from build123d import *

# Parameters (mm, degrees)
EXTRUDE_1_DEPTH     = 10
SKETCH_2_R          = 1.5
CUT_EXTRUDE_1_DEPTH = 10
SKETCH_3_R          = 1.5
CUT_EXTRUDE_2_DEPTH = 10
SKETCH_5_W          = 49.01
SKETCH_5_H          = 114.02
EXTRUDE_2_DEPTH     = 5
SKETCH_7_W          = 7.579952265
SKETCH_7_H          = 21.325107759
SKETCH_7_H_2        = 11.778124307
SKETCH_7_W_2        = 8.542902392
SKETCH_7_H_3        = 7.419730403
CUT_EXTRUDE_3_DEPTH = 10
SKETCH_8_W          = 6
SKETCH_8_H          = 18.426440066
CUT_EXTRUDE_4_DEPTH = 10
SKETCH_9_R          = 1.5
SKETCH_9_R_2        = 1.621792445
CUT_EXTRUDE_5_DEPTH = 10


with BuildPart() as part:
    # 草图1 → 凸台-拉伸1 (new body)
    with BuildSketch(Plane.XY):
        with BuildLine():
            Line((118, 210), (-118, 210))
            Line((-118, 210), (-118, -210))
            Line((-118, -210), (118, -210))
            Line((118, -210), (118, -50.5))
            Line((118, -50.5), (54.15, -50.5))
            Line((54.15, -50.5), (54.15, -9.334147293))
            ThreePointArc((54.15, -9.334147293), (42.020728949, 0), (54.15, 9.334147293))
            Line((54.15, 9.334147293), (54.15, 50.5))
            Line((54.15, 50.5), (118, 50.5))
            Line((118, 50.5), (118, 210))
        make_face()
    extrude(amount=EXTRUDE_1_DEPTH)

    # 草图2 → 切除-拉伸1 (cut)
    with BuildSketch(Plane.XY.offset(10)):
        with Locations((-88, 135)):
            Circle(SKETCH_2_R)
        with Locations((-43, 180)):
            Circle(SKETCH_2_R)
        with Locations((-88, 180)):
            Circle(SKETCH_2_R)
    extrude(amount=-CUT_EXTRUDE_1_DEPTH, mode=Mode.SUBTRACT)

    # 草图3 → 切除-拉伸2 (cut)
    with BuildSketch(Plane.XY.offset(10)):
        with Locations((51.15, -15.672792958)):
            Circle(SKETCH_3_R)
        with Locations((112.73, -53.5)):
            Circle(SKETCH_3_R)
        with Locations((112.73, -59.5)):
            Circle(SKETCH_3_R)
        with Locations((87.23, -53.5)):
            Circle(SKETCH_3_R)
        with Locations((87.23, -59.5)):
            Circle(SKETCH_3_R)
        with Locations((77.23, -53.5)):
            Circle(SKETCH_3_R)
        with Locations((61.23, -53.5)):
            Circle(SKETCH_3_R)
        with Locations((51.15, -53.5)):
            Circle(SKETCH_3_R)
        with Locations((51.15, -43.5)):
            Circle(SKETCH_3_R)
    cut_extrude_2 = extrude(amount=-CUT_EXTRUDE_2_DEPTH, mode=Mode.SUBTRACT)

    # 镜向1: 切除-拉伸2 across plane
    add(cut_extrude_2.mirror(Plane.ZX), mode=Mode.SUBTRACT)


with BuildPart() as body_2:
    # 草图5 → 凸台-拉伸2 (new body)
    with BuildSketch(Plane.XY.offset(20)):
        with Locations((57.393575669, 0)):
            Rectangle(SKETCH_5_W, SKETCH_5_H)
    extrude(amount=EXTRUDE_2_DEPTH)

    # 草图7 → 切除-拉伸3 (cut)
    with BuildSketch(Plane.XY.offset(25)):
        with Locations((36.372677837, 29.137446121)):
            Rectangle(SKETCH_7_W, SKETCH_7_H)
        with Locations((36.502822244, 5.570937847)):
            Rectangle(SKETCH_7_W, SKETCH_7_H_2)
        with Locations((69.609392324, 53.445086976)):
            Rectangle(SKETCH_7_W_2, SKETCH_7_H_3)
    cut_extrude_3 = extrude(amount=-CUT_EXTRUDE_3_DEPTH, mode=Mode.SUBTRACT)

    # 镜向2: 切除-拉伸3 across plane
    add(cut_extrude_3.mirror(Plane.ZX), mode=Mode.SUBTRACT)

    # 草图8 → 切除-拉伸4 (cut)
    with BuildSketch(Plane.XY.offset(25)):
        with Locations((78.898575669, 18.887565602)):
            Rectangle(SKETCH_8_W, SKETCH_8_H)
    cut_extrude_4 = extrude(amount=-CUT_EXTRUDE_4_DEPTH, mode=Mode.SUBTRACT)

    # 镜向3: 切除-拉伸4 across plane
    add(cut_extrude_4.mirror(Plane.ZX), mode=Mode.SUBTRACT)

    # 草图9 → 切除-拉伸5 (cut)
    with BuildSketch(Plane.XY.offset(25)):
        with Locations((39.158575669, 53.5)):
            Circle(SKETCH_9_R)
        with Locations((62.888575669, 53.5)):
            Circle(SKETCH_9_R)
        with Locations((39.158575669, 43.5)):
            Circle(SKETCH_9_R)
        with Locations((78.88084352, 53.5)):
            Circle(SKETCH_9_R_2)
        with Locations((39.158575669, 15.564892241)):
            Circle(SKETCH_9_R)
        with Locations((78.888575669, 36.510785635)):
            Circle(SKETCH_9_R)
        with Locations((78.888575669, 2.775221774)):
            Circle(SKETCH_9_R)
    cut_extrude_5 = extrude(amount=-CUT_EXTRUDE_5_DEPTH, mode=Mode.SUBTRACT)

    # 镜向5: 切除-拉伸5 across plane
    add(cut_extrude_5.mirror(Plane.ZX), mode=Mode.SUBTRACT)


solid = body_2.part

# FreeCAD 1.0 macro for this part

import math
import FreeCAD as App
import Part
import Sketcher


def add_polygon(sketch, points):
    """Adds a closed chain of lines whose ends are joined by coincident constraints."""
    first, n = sketch.GeometryCount, len(points)
    for a, b in zip(points, points[1:] + points[:1]):
        sketch.addGeometry(Part.LineSegment(App.Vector(*a, 0), App.Vector(*b, 0)), False)
    for i in range(n):
        sketch.addConstraint(Sketcher.Constraint("Coincident", first + i, 2, first + (i + 1) % n, 1))

doc = App.newDocument("Part")
body = doc.addObject("PartDesign::Body", "Body")

sketch1 = doc.addObject("Sketcher::SketchObject", "Sketch")
body.addObject(sketch1)
sketch1.AttachmentSupport = (doc.XY_Plane, [""])
sketch1.MapMode = "FlatFace"
sketch1.addGeometry([
    Part.LineSegment(App.Vector(118, 210, 0), App.Vector(-118, 210, 0)),
    Part.LineSegment(App.Vector(-118, 210, 0), App.Vector(-118, -210, 0)),
    Part.LineSegment(App.Vector(-118, -210, 0), App.Vector(118, -210, 0)),
    Part.LineSegment(App.Vector(118, -210, 0), App.Vector(118, -50, 0)),
    Part.LineSegment(App.Vector(118, -50, 0), App.Vector(54, -50, 0)),
    Part.LineSegment(App.Vector(54, -50, 0), App.Vector(54, -9, 0)),
    Part.ArcOfCircle(Part.Circle(App.Vector(52, 0, 0), App.Vector(0, 0, 1), 10), math.radians(75), math.radians(285)),
    Part.LineSegment(App.Vector(54, 9, 0), App.Vector(54, 50, 0)),
    Part.LineSegment(App.Vector(54, 50, 0), App.Vector(118, 50, 0)),
    Part.LineSegment(App.Vector(118, 50, 0), App.Vector(118, 210, 0)),
], False)
sketch1.addConstraint([
    Sketcher.Constraint("Coincident", 0, 2, 1, 1),
    Sketcher.Constraint("Coincident", 1, 2, 2, 1),
    Sketcher.Constraint("Coincident", 2, 2, 3, 1),
    Sketcher.Constraint("Coincident", 3, 2, 4, 1),
    Sketcher.Constraint("Coincident", 4, 2, 5, 1),
    Sketcher.Constraint("Coincident", 5, 2, 6, 2),
    Sketcher.Constraint("Coincident", 6, 1, 7, 1),
    Sketcher.Constraint("Coincident", 7, 2, 8, 1),
    Sketcher.Constraint("Coincident", 8, 2, 9, 1),
    Sketcher.Constraint("Coincident", 9, 2, 0, 1),
    Sketcher.Constraint("Horizontal", 0),
    Sketcher.Constraint("Vertical", 1),
    Sketcher.Constraint("Horizontal", 2),
    Sketcher.Constraint("Vertical", 3),
    Sketcher.Constraint("Horizontal", 4),
    Sketcher.Constraint("Vertical", 5),
    Sketcher.Constraint("Vertical", 7),
    Sketcher.Constraint("Horizontal", 8),
    Sketcher.Constraint("Vertical", 9),
    Sketcher.Constraint("Symmetric", 0, 2, 2, 2, -1, 1),
    Sketcher.Constraint("Symmetric", 5, 2, 6, 1, -1),
    Sketcher.Constraint("Symmetric", 3, 2, 8, 2, -1),
    Sketcher.Constraint("DistanceX", 0, 2, 0, 1, 236.0),
    Sketcher.Constraint("DistanceY", 1, 2, 1, 1, 420.0),
    Sketcher.Constraint("DistanceY", 3, 1, 3, 2, 159.5),
    Sketcher.Constraint("DistanceX", 4, 2, 4, 1, 63.85),
    Sketcher.Constraint("Radius", 6, 9.656208),
    Sketcher.Constraint("DistanceY", 5, 1, 5, 2, 41.165853),
])
pad1 = doc.addObject("PartDesign::Pad", "Pad")
body.addObject(pad1)
pad1.Profile = sketch1
pad1.Length = 10

sketch2 = doc.addObject("Sketcher::SketchObject", "Sketch001")
body.addObject(sketch2)
sketch2.AttachmentSupport = (doc.XY_Plane, [""])
sketch2.MapMode = "FlatFace"
sketch2.AttachmentOffset = App.Placement(App.Vector(0, 0, 10), App.Rotation())
sketch2.addGeometry([
    Part.Circle(App.Vector(-88, 135, 0), App.Vector(0, 0, 1), 1.5),
    Part.Circle(App.Vector(-43, 180, 0), App.Vector(0, 0, 1), 1.5),
    Part.Circle(App.Vector(-88, 180, 0), App.Vector(0, 0, 1), 1.5),
], False)
sketch2.addConstraint([
    Sketcher.Constraint("Equal", 0, 1),
    Sketcher.Constraint("Equal", 1, 2),
    Sketcher.Constraint("Horizontal", 1, 3, 2, 3),
    Sketcher.Constraint("Vertical", 0, 3, 2, 3),
    Sketcher.Constraint("Diameter", 0, 3.0),
    Sketcher.Constraint("DistanceX", 0, 3, -1, 1, 88.0),
    Sketcher.Constraint("DistanceY", -1, 1, 0, 3, 135.0),
    Sketcher.Constraint("DistanceX", 1, 3, -1, 1, 43.0),
    Sketcher.Constraint("DistanceY", -1, 1, 1, 3, 180.0),
])
pocket1 = doc.addObject("PartDesign::Pocket", "Pocket")
body.addObject(pocket1)
pocket1.Profile = sketch2
pocket1.Length = 10

sketch3 = doc.addObject("Sketcher::SketchObject", "Sketch002")
body.addObject(sketch3)
sketch3.AttachmentSupport = (doc.XY_Plane, [""])
sketch3.MapMode = "FlatFace"
sketch3.AttachmentOffset = App.Placement(App.Vector(0, 0, 10), App.Rotation())
sketch3.addGeometry([
    Part.Circle(App.Vector(51.1, -15.7, 0), App.Vector(0, 0, 1), 1.5),
    Part.Circle(App.Vector(112.7, -53.5, 0), App.Vector(0, 0, 1), 1.5),
    Part.Circle(App.Vector(112.7, -59.5, 0), App.Vector(0, 0, 1), 1.5),
    Part.Circle(App.Vector(87.2, -53.5, 0), App.Vector(0, 0, 1), 1.5),
    Part.Circle(App.Vector(87.2, -59.5, 0), App.Vector(0, 0, 1), 1.5),
    Part.Circle(App.Vector(77.2, -53.5, 0), App.Vector(0, 0, 1), 1.5),
    Part.Circle(App.Vector(61.2, -53.5, 0), App.Vector(0, 0, 1), 1.5),
    Part.Circle(App.Vector(51.1, -53.5, 0), App.Vector(0, 0, 1), 1.5),
    Part.Circle(App.Vector(51.1, -43.5, 0), App.Vector(0, 0, 1), 1.5),
], False)
sketch3.addConstraint([
    Sketcher.Constraint("Equal", 0, 1),
    Sketcher.Constraint("Equal", 1, 2),
    Sketcher.Constraint("Equal", 2, 3),
    Sketcher.Constraint("Equal", 3, 4),
    Sketcher.Constraint("Equal", 4, 5),
    Sketcher.Constraint("Equal", 5, 6),
    Sketcher.Constraint("Equal", 6, 7),
    Sketcher.Constraint("Equal", 7, 8),
    Sketcher.Constraint("Horizontal", 1, 3, 3, 3),
    Sketcher.Constraint("Horizontal", 2, 3, 4, 3),
    Sketcher.Constraint("Horizontal", 3, 3, 5, 3),
    Sketcher.Constraint("Horizontal", 5, 3, 6, 3),
    Sketcher.Constraint("Horizontal", 6, 3, 7, 3),
    Sketcher.Constraint("Vertical", 1, 3, 2, 3),
    Sketcher.Constraint("Vertical", 3, 3, 4, 3),
    Sketcher.Constraint("Vertical", 0, 3, 7, 3),
    Sketcher.Constraint("Vertical", 7, 3, 8, 3),
    Sketcher.Constraint("Diameter", 0, 3.0),
    Sketcher.Constraint("DistanceY", 2, 3, 1, 3, 6.0),
    Sketcher.Constraint("DistanceX", 5, 3, 3, 3, 10.0),
    Sketcher.Constraint("DistanceX", 6, 3, 5, 3, 16.0),
    Sketcher.Constraint("DistanceY", 7, 3, 8, 3, 10.0),
    Sketcher.Constraint("DistanceY", 1, 3, -1, 1, 53.5),
    Sketcher.Constraint("DistanceX", 3, 3, 1, 3, 25.5),
    Sketcher.Constraint("DistanceX", -1, 1, 0, 3, 51.15),
    Sketcher.Constraint("DistanceX", -1, 1, 1, 3, 112.73),
    Sketcher.Constraint("DistanceY", 0, 3, -1, 1, 15.672793),
])
pocket2 = doc.addObject("PartDesign::Pocket", "Pocket001")
body.addObject(pocket2)
pocket2.Profile = sketch3
pocket2.Length = 10
doc.recompute()

mirrored = doc.addObject("PartDesign::Mirrored", "Mirrored")
body.addObject(mirrored)
mirrored.Originals = [pocket2]
mirrored.MirrorPlane = (doc.XZ_Plane, [""])
body.Tip = mirrored
body2 = doc.addObject("PartDesign::Body", "Body001")

sketch4 = doc.addObject("Sketcher::SketchObject", "Sketch003")
body2.addObject(sketch4)
sketch4.AttachmentSupport = (doc.getObject("XY_Plane001"), [""])
sketch4.MapMode = "FlatFace"
sketch4.AttachmentOffset = App.Placement(App.Vector(0, 0, 20), App.Rotation())
add_polygon(sketch4, [(33, 57), (33, -57), (82, -57), (82, 57)])
sketch4.addConstraint([
    Sketcher.Constraint("Vertical", 0),
    Sketcher.Constraint("Horizontal", 1),
    Sketcher.Constraint("Vertical", 2),
    Sketcher.Constraint("Horizontal", 3),
    Sketcher.Constraint("DistanceX", 1, 1, 1, 2, 49.01),
    Sketcher.Constraint("DistanceY", 0, 2, 0, 1, 114.02),
    Sketcher.Constraint("DistanceY", 0, 2, -1, 1, 57.01),
    Sketcher.Constraint("DistanceX", -1, 1, 0, 2, 32.888576),
])
pad2 = doc.addObject("PartDesign::Pad", "Pad001")
body2.addObject(pad2)
pad2.Profile = sketch4
pad2.Length = 5

sketch5 = doc.addObject("Sketcher::SketchObject", "Sketch004")
body2.addObject(sketch5)
sketch5.AttachmentSupport = (doc.getObject("XY_Plane001"), [""])
sketch5.MapMode = "FlatFace"
sketch5.AttachmentOffset = App.Placement(App.Vector(0, 0, 25), App.Rotation())
add_polygon(sketch5, [(33, 40), (33, 18), (40, 18), (40, 40)])
add_polygon(sketch5, [(33, 11), (33, 0), (40, 0), (40, 11)])
add_polygon(sketch5, [(65, 57), (65, 50), (74, 50), (74, 57)])
sketch5.addConstraint([
    Sketcher.Constraint("Vertical", 0),
    Sketcher.Constraint("Horizontal", 1),
    Sketcher.Constraint("Vertical", 2),
    Sketcher.Constraint("Horizontal", 3),
    Sketcher.Constraint("Vertical", 4),
    Sketcher.Constraint("Horizontal", 5),
    Sketcher.Constraint("Vertical", 6),
    Sketcher.Constraint("Horizontal", 7),
    Sketcher.Constraint("Vertical", 8),
    Sketcher.Constraint("Horizontal", 9),
    Sketcher.Constraint("Vertical", 10),
    Sketcher.Constraint("Horizontal", 11),
    Sketcher.Constraint("Equal", 3, 5),
    Sketcher.Constraint("DistanceY", -1, 1, 2, 2, 39.8),
    Sketcher.Constraint("DistanceY", -1, 1, 6, 2, 11.46),
    Sketcher.Constraint("DistanceY", 8, 2, 8, 1, 7.41973),
    Sketcher.Constraint("DistanceX", -1, 1, 0, 2, 32.582702),
    Sketcher.Constraint("DistanceX", -1, 1, 5, 2, 40.292798),
    Sketcher.Constraint("DistanceX", 1, 1, 1, 2, 7.579952),
    Sketcher.Constraint("DistanceX", 9, 1, 9, 2, 8.542902),
    Sketcher.Constraint("DistanceY", 0, 2, 0, 1, 21.325108),
    Sketcher.Constraint("DistanceY", 4, 2, 4, 1, 11.778124),
    Sketcher.Constraint("DistanceX", -1, 1, 8, 2, 65.337941),
    Sketcher.Constraint("DistanceY", -1, 1, 8, 2, 49.735222),
])
pocket3 = doc.addObject("PartDesign::Pocket", "Pocket002")
body2.addObject(pocket3)
pocket3.Profile = sketch5
pocket3.Length = 10
doc.recompute()

mirrored2 = doc.addObject("PartDesign::Mirrored", "Mirrored001")
body2.addObject(mirrored2)
mirrored2.Originals = [pocket3]
mirrored2.MirrorPlane = (doc.getObject("XZ_Plane001"), [""])
body2.Tip = mirrored2

sketch6 = doc.addObject("Sketcher::SketchObject", "Sketch005")
body2.addObject(sketch6)
sketch6.AttachmentSupport = (doc.getObject("XY_Plane001"), [""])
sketch6.MapMode = "FlatFace"
sketch6.AttachmentOffset = App.Placement(App.Vector(0, 0, 25), App.Rotation())
add_polygon(sketch6, [(76, 28), (76, 10), (82, 10), (82, 28)])
sketch6.addConstraint([
    Sketcher.Constraint("Vertical", 0),
    Sketcher.Constraint("Horizontal", 1),
    Sketcher.Constraint("Vertical", 2),
    Sketcher.Constraint("Horizontal", 3),
    Sketcher.Constraint("DistanceX", 1, 1, 1, 2, 6.0),
    Sketcher.Constraint("DistanceY", 0, 2, 0, 1, 18.42644),
    Sketcher.Constraint("DistanceX", -1, 1, 0, 2, 75.898576),
    Sketcher.Constraint("DistanceY", -1, 1, 0, 2, 9.674346),
])
pocket4 = doc.addObject("PartDesign::Pocket", "Pocket003")
body2.addObject(pocket4)
pocket4.Profile = sketch6
pocket4.Length = 10
doc.recompute()

mirrored3 = doc.addObject("PartDesign::Mirrored", "Mirrored002")
body2.addObject(mirrored3)
mirrored3.Originals = [pocket4]
mirrored3.MirrorPlane = (doc.getObject("XZ_Plane001"), [""])
body2.Tip = mirrored3

sketch7 = doc.addObject("Sketcher::SketchObject", "Sketch006")
body2.addObject(sketch7)
sketch7.AttachmentSupport = (doc.getObject("XY_Plane001"), [""])
sketch7.MapMode = "FlatFace"
sketch7.AttachmentOffset = App.Placement(App.Vector(0, 0, 25), App.Rotation())
sketch7.addGeometry([
    Part.Circle(App.Vector(39.2, 53.5, 0), App.Vector(0, 0, 1), 1.5),
    Part.Circle(App.Vector(62.9, 53.5, 0), App.Vector(0, 0, 1), 1.5),
    Part.Circle(App.Vector(39.2, 43.5, 0), App.Vector(0, 0, 1), 1.5),
    Part.Circle(App.Vector(78.9, 53.5, 0), App.Vector(0, 0, 1), 1.6),
    Part.Circle(App.Vector(39.2, 15.6, 0), App.Vector(0, 0, 1), 1.5),
    Part.Circle(App.Vector(78.9, 36.5, 0), App.Vector(0, 0, 1), 1.5),
    Part.Circle(App.Vector(78.9, 2.8, 0), App.Vector(0, 0, 1), 1.5),
], False)
sketch7.addConstraint([
    Sketcher.Constraint("Equal", 0, 1),
    Sketcher.Constraint("Equal", 1, 2),
    Sketcher.Constraint("Equal", 2, 4),
    Sketcher.Constraint("Equal", 4, 5),
    Sketcher.Constraint("Equal", 5, 6),
    Sketcher.Constraint("Horizontal", 0, 3, 1, 3),
    Sketcher.Constraint("Horizontal", 1, 3, 3, 3),
    Sketcher.Constraint("Vertical", 0, 3, 2, 3),
    Sketcher.Constraint("Vertical", 2, 3, 4, 3),
    Sketcher.Constraint("Vertical", 5, 3, 6, 3),
    Sketcher.Constraint("Diameter", 0, 3.0),
    Sketcher.Constraint("DistanceY", 2, 3, 0, 3, 10.0),
    Sketcher.Constraint("DistanceX", 1, 3, 5, 3, 16.0),
    Sketcher.Constraint("DistanceY", -1, 1, 0, 3, 53.5),
    Sketcher.Constraint("DistanceX", 0, 3, 1, 3, 23.73),
    Sketcher.Constraint("Diameter", 3, 3.243585),
    Sketcher.Constraint("DistanceY", -1, 1, 6, 3, 2.775222),
    Sketcher.Constraint("DistanceY", 6, 3, 4, 3, 12.78967),
    Sketcher.Constraint("DistanceX", -1, 1, 0, 3, 39.158576),
    Sketcher.Constraint("DistanceX", -1, 1, 3, 3, 78.880844),
    Sketcher.Constraint("DistanceY", -1, 1, 5, 3, 36.510786),
])
pocket5 = doc.addObject("PartDesign::Pocket", "Pocket004")
body2.addObject(pocket5)
pocket5.Profile = sketch7
pocket5.Length = 10
doc.recompute()

mirrored4 = doc.addObject("PartDesign::Mirrored", "Mirrored003")
body2.addObject(mirrored4)
mirrored4.Originals = [pocket5]
mirrored4.MirrorPlane = (doc.getObject("XZ_Plane001"), [""])
body2.Tip = mirrored4
body.Visibility = False

doc.recompute()
